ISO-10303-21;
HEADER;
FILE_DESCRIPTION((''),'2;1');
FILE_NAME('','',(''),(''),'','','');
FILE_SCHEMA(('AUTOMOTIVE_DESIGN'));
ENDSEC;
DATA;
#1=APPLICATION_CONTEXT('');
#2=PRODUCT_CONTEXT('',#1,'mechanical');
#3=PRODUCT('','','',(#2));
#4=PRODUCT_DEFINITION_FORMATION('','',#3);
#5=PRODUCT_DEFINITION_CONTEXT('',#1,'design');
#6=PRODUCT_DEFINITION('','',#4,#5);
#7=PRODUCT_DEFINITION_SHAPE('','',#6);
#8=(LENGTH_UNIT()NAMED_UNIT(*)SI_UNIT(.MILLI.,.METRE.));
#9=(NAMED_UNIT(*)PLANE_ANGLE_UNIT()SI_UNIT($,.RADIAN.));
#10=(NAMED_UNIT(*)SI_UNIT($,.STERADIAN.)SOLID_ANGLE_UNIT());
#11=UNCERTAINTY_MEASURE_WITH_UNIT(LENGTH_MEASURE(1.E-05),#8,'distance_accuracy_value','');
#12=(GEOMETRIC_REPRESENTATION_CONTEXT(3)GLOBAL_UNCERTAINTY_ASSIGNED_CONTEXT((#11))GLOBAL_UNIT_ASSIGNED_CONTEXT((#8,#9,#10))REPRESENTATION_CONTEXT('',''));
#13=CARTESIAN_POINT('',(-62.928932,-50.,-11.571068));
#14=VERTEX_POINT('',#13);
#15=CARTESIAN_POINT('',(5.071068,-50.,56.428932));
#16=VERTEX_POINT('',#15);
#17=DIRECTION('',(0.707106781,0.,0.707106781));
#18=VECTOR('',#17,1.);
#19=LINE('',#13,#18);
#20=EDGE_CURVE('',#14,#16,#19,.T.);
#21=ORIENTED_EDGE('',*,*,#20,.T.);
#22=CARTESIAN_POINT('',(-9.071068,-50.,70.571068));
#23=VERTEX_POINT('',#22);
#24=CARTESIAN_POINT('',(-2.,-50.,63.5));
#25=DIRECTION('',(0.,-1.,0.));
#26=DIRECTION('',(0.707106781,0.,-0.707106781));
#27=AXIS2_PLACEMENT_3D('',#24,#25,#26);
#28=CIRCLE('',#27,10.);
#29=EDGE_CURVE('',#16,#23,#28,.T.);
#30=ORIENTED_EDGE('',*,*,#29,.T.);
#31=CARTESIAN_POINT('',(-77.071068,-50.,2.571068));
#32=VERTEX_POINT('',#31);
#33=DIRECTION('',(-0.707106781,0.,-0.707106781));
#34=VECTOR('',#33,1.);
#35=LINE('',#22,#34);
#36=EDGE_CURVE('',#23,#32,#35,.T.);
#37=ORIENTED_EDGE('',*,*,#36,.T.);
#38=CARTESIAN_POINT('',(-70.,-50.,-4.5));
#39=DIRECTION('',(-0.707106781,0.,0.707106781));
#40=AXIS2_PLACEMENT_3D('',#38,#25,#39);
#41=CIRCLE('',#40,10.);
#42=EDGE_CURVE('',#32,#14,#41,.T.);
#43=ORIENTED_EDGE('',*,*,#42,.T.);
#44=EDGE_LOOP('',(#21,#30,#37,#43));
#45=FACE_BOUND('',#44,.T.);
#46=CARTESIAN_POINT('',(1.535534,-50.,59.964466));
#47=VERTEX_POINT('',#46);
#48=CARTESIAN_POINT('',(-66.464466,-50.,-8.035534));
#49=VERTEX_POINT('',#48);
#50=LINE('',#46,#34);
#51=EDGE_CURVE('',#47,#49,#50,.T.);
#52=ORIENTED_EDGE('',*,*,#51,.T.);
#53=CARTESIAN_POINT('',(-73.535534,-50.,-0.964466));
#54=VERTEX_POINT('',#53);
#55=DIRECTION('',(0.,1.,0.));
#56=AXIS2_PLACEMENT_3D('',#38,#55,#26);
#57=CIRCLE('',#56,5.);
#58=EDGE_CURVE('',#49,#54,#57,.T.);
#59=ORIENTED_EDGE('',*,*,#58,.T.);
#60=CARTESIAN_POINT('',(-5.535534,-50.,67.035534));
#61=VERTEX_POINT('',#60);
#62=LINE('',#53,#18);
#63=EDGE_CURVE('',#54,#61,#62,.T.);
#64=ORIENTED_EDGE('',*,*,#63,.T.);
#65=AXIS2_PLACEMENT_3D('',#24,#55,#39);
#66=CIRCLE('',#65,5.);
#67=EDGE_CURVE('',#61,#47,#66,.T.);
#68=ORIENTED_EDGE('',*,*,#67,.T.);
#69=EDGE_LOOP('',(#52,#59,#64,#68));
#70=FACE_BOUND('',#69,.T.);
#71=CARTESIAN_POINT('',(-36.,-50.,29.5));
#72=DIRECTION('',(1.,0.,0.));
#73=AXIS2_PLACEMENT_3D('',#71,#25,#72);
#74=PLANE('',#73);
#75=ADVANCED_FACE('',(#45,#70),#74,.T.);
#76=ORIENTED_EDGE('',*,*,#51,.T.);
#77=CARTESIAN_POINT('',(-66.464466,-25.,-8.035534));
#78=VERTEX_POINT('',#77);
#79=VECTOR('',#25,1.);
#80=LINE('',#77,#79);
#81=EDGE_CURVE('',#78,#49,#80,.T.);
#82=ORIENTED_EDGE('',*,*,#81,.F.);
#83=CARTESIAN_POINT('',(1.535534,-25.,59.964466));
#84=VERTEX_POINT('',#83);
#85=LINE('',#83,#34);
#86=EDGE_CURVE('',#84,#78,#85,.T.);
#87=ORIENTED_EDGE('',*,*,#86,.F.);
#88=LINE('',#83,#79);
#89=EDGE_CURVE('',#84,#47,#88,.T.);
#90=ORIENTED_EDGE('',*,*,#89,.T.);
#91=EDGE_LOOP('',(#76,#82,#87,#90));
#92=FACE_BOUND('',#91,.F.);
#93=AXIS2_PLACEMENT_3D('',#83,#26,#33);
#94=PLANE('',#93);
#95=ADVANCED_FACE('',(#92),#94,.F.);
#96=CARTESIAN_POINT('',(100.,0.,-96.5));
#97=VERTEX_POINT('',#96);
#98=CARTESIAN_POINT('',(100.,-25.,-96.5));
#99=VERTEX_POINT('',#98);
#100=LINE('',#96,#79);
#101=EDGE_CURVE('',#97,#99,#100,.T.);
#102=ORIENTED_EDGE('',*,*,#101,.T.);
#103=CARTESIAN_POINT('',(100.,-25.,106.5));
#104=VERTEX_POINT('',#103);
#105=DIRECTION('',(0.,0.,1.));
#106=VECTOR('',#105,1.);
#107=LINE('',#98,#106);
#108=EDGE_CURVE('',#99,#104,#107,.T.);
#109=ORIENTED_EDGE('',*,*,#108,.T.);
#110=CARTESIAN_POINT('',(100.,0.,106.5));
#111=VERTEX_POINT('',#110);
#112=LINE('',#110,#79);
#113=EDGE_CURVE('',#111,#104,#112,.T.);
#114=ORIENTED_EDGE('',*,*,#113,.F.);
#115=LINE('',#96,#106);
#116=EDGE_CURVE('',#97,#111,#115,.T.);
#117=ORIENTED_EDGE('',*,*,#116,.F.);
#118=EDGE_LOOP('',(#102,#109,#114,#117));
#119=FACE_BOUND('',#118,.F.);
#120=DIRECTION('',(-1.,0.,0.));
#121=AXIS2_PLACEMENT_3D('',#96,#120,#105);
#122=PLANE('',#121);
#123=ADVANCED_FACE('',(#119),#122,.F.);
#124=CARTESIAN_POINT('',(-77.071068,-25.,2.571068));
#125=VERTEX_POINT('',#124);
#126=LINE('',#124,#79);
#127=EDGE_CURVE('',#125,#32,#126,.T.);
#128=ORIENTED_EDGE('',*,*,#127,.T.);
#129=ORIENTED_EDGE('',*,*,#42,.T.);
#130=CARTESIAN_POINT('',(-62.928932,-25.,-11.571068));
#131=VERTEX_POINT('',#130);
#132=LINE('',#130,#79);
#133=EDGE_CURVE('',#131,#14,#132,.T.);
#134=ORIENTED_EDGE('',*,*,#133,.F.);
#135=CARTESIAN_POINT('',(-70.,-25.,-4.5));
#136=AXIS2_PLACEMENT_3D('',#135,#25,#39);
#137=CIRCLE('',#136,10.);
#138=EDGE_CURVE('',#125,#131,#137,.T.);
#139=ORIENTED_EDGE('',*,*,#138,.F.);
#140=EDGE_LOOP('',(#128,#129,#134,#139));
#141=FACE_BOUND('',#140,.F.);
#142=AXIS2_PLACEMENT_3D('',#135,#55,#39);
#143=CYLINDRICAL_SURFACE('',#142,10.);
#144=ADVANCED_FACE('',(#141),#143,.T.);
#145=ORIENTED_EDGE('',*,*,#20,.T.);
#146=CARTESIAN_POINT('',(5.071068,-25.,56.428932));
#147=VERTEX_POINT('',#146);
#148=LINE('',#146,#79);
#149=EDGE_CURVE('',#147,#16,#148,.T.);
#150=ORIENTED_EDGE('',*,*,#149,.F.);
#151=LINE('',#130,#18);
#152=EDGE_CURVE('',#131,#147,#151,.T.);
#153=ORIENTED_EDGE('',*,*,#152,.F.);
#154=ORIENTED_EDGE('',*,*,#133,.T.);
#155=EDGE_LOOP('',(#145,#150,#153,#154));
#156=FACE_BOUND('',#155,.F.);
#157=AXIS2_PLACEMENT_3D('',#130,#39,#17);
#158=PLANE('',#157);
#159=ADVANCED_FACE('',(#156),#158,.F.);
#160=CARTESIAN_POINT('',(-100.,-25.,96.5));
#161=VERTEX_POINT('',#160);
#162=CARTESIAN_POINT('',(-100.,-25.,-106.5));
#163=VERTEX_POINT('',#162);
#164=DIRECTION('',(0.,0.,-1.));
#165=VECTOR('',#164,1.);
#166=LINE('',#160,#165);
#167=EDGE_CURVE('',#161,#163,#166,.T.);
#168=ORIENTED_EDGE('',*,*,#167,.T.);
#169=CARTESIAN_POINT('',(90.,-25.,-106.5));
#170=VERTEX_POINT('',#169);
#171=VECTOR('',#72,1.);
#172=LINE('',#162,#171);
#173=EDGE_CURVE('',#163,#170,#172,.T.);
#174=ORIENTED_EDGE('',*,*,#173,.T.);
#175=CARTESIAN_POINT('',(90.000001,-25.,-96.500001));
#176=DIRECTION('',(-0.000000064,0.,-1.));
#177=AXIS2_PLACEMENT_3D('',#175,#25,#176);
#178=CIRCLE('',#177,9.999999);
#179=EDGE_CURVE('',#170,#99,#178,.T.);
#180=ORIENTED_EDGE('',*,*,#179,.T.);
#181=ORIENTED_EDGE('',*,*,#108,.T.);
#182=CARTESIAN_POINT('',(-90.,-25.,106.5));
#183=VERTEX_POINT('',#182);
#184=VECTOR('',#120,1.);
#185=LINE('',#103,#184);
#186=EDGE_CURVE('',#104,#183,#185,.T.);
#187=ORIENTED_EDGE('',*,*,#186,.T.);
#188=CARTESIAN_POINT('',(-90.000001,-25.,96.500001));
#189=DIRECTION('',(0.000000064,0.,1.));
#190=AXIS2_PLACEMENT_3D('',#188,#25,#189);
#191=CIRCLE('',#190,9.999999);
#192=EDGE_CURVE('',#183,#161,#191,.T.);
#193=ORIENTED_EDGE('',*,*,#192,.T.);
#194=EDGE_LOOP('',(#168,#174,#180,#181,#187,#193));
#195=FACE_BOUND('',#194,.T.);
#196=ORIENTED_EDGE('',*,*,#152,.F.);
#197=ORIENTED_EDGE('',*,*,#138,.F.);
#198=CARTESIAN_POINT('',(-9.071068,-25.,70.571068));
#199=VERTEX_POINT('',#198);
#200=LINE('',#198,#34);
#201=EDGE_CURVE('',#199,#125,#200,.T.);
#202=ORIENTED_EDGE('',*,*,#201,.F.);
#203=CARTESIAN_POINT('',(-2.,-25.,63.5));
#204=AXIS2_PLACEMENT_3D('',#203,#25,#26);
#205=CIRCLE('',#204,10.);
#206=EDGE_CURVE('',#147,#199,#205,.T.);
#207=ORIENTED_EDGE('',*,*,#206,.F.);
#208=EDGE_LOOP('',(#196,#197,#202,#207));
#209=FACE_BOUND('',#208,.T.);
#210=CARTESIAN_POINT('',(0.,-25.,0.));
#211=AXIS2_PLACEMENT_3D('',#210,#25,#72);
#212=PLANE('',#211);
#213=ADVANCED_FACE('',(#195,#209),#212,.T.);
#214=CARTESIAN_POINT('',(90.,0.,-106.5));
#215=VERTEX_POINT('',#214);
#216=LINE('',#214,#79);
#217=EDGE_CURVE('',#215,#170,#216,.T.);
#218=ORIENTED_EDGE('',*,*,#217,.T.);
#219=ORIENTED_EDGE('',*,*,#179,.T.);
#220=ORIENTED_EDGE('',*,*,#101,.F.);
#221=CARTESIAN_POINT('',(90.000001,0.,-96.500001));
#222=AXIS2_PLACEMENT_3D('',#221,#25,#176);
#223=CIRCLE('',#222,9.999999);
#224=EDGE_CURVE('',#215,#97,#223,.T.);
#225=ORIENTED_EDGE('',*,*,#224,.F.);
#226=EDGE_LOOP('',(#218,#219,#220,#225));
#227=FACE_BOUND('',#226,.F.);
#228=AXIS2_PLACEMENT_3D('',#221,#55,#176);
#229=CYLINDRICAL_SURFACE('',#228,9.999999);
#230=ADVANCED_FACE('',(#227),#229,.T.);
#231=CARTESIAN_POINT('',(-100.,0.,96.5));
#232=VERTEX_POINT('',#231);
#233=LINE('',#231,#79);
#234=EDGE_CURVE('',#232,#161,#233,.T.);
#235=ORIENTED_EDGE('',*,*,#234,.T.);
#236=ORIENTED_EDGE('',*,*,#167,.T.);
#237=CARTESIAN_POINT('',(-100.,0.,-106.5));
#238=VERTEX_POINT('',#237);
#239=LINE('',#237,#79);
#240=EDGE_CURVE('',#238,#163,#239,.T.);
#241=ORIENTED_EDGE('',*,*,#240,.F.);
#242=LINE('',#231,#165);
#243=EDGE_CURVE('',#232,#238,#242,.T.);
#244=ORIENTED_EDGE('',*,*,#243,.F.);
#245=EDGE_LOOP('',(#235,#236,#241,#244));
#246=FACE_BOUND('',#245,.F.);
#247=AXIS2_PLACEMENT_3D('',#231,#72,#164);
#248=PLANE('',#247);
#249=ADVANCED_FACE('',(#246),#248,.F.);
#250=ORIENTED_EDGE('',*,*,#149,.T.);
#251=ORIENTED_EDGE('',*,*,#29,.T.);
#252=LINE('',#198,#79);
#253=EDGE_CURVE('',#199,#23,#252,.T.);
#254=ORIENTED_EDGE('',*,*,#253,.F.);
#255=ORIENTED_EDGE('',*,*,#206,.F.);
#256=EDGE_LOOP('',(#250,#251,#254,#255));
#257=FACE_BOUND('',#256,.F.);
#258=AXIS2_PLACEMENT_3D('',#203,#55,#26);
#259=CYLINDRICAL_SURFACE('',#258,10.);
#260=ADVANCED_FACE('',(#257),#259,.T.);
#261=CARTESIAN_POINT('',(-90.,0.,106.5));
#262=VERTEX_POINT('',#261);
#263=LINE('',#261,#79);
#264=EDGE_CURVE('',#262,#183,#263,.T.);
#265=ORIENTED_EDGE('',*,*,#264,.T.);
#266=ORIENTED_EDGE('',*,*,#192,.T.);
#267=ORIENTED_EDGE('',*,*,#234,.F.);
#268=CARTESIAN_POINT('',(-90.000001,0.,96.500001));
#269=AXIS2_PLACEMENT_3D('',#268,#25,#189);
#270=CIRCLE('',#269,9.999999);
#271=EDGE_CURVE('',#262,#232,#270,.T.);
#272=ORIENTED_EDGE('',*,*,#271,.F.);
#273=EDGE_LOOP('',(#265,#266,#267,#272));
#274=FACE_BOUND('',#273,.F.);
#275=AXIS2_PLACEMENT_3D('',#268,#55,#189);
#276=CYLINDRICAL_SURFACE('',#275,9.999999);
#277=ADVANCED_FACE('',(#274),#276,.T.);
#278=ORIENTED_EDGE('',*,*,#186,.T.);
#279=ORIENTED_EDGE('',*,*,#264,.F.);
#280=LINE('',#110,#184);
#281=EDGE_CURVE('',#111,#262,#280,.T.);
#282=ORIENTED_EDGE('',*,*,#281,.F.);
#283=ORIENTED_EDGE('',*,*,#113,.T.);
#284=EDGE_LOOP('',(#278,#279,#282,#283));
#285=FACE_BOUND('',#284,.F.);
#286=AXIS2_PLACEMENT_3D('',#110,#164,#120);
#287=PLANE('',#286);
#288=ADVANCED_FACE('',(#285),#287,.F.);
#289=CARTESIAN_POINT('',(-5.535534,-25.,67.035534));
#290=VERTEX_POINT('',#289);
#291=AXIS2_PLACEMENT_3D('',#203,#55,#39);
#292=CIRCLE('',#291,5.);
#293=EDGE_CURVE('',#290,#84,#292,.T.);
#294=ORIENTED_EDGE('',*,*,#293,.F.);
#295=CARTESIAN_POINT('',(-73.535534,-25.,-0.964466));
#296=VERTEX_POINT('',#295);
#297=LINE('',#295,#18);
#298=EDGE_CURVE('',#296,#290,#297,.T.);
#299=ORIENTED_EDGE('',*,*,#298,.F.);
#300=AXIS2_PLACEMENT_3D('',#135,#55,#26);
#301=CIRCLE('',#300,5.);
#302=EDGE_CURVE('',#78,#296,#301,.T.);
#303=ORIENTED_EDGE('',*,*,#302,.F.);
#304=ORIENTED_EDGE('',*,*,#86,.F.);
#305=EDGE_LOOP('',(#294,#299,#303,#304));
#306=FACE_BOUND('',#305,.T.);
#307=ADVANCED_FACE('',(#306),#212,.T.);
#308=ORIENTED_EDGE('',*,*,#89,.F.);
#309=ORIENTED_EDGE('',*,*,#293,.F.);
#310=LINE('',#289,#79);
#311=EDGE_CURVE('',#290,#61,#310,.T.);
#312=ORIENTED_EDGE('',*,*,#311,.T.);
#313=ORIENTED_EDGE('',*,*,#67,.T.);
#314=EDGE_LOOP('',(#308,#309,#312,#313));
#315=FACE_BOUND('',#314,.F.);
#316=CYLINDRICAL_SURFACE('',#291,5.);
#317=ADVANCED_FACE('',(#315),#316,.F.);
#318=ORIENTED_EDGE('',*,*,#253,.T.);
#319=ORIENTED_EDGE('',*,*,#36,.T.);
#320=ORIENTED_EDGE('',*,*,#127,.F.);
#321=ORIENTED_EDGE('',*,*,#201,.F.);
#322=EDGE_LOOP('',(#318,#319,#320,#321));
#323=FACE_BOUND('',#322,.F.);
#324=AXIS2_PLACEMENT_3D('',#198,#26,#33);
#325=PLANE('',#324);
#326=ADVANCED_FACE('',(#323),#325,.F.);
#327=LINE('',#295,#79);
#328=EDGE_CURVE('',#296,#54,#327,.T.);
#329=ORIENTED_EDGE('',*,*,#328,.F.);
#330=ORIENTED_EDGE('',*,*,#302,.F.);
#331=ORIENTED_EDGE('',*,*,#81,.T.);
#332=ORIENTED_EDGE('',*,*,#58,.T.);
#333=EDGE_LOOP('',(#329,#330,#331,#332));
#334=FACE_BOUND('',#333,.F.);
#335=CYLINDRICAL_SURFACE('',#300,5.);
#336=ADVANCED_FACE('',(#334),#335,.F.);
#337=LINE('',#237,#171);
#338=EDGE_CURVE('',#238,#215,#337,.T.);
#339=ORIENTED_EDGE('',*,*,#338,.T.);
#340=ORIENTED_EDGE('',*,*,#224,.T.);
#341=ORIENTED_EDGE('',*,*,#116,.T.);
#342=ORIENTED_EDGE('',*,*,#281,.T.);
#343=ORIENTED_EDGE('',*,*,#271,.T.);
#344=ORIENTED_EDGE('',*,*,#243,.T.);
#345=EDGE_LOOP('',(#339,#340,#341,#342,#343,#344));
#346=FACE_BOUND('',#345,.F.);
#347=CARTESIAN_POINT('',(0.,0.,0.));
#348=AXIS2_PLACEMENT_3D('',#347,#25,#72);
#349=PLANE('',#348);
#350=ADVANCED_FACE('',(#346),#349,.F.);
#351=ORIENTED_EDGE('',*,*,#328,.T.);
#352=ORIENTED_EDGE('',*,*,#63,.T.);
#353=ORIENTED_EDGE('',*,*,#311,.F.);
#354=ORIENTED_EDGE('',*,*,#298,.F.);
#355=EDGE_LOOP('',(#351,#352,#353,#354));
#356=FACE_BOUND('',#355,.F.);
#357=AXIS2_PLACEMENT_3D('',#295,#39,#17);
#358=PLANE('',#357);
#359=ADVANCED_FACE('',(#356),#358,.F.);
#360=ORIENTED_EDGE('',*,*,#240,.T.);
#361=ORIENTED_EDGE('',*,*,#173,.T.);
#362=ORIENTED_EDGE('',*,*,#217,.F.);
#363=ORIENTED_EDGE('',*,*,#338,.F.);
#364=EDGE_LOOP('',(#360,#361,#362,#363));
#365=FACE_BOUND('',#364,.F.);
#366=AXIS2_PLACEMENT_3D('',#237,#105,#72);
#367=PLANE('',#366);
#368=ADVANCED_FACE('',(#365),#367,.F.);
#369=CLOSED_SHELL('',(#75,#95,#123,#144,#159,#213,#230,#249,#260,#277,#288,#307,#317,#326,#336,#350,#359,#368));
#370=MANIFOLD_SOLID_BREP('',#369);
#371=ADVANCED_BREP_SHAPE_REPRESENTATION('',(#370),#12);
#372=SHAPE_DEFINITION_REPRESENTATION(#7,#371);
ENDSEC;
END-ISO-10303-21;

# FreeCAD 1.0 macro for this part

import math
import FreeCAD as App
import Part
import Sketcher
from FreeCAD import Vector
Q = App.Units.Quantity

doc = App.newDocument("Part")
body = doc.addObject("PartDesign::Body", "Body")

# Sketch on XZ plane
sketch1 = doc.addObject("Sketcher::SketchObject", "Sketch")
body.addObject(sketch1)
sketch1.AttachmentSupport = (doc.XZ_Plane, [""])
sketch1.MapMode = "FlatFace"
sketch1.addGeometry(Part.LineSegment(Vector(100, -96, 0), Vector(100, 106, 0)), False)
sketch1.addGeometry(Part.LineSegment(Vector(100, 106, 0), Vector(-90, 106, 0)), False)
sketch1.addGeometry(Part.ArcOfCircle(Part.Circle(Vector(-90, 97, 0), Vector(0, 0, 1), 10), math.radians(90), math.radians(180)), False)
sketch1.addGeometry(Part.LineSegment(Vector(-100, 96, 0), Vector(-100, -106, 0)), False)
sketch1.addGeometry(Part.LineSegment(Vector(-100, -106, 0), Vector(90, -106, 0)), False)
sketch1.addGeometry(Part.ArcOfCircle(Part.Circle(Vector(90, -97, 0), Vector(0, 0, 1), 10), math.radians(-90), math.radians(0)), False)
sketch1.addConstraint(Sketcher.Constraint("Coincident", 0, 2, 1, 1))
sketch1.addConstraint(Sketcher.Constraint("Tangent", 1, 2, 2, 1))
sketch1.addConstraint(Sketcher.Constraint("Tangent", 2, 2, 3, 1))
sketch1.addConstraint(Sketcher.Constraint("Coincident", 3, 2, 4, 1))
sketch1.addConstraint(Sketcher.Constraint("Tangent", 4, 2, 5, 1))
sketch1.addConstraint(Sketcher.Constraint("Tangent", 5, 2, 0, 1))
sketch1.addConstraint(Sketcher.Constraint("Vertical", 0))
sketch1.addConstraint(Sketcher.Constraint("Horizontal", 1))
sketch1.addConstraint(Sketcher.Constraint("Vertical", 3))
sketch1.addConstraint(Sketcher.Constraint("Horizontal", 4))
sketch1.addConstraint(Sketcher.Constraint("Equal", 2, 5))
sketch1.addConstraint(Sketcher.Constraint("Symmetric", 2, 3, 5, 3, -1, 1))
sketch1.addConstraint(Sketcher.Constraint("Radius", 2, 9.999999))
sketch1.addConstraint(Sketcher.Constraint("DistanceX", 1, 2, 1, 1, 190.0))
sketch1.addConstraint(Sketcher.Constraint("DistanceY", 0, 1, 0, 2, 203.0))
pad1 = doc.addObject("PartDesign::Pad", "Pad")
body.addObject(pad1)
pad1.Profile = sketch1
pad1.Length = 25

# Sketch on XZ plane
sketch2 = doc.addObject("Sketcher::SketchObject", "Sketch001")
body.addObject(sketch2)
sketch2.AttachmentSupport = (doc.XZ_Plane, [""])
sketch2.MapMode = "FlatFace"
sketch2.AttachmentOffset = App.Placement(Vector(0, 0, 25), App.Rotation())
sketch2.addGeometry(Part.LineSegment(Vector(-63, -12, 0), Vector(5, 56, 0)), False)
sketch2.addGeometry(Part.ArcOfCircle(Part.Circle(Vector(-2, 64, 0), Vector(0, 0, 1), 10), math.radians(-45), math.radians(135)), False)
sketch2.addGeometry(Part.LineSegment(Vector(-9, 71, 0), Vector(-77, 3, 0)), False)
sketch2.addGeometry(Part.ArcOfCircle(Part.Circle(Vector(-70, -4, 0), Vector(0, 0, 1), 10), math.radians(135), math.radians(315)), False)
sketch2.addGeometry(Part.LineSegment(Vector(2, 60, 0), Vector(-66, -8, 0)), False)
sketch2.addGeometry(Part.ArcOfCircle(Part.Circle(Vector(-70, -4, 0), Vector(0, 0, 1), 5), math.radians(135), math.radians(315)), False)
sketch2.addGeometry(Part.LineSegment(Vector(-74, -1, 0), Vector(-6, 67, 0)), False)
sketch2.addGeometry(Part.ArcOfCircle(Part.Circle(Vector(-2, 64, 0), Vector(0, 0, 1), 5), math.radians(-45), math.radians(135)), False)
sketch2.addConstraint(Sketcher.Constraint("Tangent", 0, 2, 1, 1))
sketch2.addConstraint(Sketcher.Constraint("Tangent", 1, 2, 2, 1))
sketch2.addConstraint(Sketcher.Constraint("Tangent", 2, 2, 3, 1))
sketch2.addConstraint(Sketcher.Constraint("Tangent", 3, 2, 0, 1))
sketch2.addConstraint(Sketcher.Constraint("Tangent", 4, 2, 5, 2))
sketch2.addConstraint(Sketcher.Constraint("Tangent", 5, 1, 6, 1))
sketch2.addConstraint(Sketcher.Constraint("Tangent", 6, 2, 7, 2))
sketch2.addConstraint(Sketcher.Constraint("Tangent", 7, 1, 4, 1))
sketch2.addConstraint(Sketcher.Constraint("Coincident", 5, 3, 3, 3))
sketch2.addConstraint(Sketcher.Constraint("Coincident", 7, 3, 1, 3))
sketch2.addConstraint(Sketcher.Constraint("Equal", 1, 3))
sketch2.addConstraint(Sketcher.Constraint("Equal", 5, 7))
sketch2.addConstraint(Sketcher.Constraint("Radius", 1, 10.0))
sketch2.addConstraint(Sketcher.Constraint("Radius", 5, 5.0))
sketch2.addConstraint(Sketcher.Constraint("Angle", 0, Q("45 deg")))
sketch2.addConstraint(Sketcher.Constraint("DistanceX", 1, 3, -1, 1, 2.0))
sketch2.addConstraint(Sketcher.Constraint("DistanceX", 3, 3, -1, 1, 70.0))
sketch2.addConstraint(Sketcher.Constraint("DistanceY", -1, 1, 1, 3, 63.5))
pad2 = doc.addObject("PartDesign::Pad", "Pad001")
body.addObject(pad2)
pad2.Profile = sketch2
pad2.Length = 25

doc.recompute()
